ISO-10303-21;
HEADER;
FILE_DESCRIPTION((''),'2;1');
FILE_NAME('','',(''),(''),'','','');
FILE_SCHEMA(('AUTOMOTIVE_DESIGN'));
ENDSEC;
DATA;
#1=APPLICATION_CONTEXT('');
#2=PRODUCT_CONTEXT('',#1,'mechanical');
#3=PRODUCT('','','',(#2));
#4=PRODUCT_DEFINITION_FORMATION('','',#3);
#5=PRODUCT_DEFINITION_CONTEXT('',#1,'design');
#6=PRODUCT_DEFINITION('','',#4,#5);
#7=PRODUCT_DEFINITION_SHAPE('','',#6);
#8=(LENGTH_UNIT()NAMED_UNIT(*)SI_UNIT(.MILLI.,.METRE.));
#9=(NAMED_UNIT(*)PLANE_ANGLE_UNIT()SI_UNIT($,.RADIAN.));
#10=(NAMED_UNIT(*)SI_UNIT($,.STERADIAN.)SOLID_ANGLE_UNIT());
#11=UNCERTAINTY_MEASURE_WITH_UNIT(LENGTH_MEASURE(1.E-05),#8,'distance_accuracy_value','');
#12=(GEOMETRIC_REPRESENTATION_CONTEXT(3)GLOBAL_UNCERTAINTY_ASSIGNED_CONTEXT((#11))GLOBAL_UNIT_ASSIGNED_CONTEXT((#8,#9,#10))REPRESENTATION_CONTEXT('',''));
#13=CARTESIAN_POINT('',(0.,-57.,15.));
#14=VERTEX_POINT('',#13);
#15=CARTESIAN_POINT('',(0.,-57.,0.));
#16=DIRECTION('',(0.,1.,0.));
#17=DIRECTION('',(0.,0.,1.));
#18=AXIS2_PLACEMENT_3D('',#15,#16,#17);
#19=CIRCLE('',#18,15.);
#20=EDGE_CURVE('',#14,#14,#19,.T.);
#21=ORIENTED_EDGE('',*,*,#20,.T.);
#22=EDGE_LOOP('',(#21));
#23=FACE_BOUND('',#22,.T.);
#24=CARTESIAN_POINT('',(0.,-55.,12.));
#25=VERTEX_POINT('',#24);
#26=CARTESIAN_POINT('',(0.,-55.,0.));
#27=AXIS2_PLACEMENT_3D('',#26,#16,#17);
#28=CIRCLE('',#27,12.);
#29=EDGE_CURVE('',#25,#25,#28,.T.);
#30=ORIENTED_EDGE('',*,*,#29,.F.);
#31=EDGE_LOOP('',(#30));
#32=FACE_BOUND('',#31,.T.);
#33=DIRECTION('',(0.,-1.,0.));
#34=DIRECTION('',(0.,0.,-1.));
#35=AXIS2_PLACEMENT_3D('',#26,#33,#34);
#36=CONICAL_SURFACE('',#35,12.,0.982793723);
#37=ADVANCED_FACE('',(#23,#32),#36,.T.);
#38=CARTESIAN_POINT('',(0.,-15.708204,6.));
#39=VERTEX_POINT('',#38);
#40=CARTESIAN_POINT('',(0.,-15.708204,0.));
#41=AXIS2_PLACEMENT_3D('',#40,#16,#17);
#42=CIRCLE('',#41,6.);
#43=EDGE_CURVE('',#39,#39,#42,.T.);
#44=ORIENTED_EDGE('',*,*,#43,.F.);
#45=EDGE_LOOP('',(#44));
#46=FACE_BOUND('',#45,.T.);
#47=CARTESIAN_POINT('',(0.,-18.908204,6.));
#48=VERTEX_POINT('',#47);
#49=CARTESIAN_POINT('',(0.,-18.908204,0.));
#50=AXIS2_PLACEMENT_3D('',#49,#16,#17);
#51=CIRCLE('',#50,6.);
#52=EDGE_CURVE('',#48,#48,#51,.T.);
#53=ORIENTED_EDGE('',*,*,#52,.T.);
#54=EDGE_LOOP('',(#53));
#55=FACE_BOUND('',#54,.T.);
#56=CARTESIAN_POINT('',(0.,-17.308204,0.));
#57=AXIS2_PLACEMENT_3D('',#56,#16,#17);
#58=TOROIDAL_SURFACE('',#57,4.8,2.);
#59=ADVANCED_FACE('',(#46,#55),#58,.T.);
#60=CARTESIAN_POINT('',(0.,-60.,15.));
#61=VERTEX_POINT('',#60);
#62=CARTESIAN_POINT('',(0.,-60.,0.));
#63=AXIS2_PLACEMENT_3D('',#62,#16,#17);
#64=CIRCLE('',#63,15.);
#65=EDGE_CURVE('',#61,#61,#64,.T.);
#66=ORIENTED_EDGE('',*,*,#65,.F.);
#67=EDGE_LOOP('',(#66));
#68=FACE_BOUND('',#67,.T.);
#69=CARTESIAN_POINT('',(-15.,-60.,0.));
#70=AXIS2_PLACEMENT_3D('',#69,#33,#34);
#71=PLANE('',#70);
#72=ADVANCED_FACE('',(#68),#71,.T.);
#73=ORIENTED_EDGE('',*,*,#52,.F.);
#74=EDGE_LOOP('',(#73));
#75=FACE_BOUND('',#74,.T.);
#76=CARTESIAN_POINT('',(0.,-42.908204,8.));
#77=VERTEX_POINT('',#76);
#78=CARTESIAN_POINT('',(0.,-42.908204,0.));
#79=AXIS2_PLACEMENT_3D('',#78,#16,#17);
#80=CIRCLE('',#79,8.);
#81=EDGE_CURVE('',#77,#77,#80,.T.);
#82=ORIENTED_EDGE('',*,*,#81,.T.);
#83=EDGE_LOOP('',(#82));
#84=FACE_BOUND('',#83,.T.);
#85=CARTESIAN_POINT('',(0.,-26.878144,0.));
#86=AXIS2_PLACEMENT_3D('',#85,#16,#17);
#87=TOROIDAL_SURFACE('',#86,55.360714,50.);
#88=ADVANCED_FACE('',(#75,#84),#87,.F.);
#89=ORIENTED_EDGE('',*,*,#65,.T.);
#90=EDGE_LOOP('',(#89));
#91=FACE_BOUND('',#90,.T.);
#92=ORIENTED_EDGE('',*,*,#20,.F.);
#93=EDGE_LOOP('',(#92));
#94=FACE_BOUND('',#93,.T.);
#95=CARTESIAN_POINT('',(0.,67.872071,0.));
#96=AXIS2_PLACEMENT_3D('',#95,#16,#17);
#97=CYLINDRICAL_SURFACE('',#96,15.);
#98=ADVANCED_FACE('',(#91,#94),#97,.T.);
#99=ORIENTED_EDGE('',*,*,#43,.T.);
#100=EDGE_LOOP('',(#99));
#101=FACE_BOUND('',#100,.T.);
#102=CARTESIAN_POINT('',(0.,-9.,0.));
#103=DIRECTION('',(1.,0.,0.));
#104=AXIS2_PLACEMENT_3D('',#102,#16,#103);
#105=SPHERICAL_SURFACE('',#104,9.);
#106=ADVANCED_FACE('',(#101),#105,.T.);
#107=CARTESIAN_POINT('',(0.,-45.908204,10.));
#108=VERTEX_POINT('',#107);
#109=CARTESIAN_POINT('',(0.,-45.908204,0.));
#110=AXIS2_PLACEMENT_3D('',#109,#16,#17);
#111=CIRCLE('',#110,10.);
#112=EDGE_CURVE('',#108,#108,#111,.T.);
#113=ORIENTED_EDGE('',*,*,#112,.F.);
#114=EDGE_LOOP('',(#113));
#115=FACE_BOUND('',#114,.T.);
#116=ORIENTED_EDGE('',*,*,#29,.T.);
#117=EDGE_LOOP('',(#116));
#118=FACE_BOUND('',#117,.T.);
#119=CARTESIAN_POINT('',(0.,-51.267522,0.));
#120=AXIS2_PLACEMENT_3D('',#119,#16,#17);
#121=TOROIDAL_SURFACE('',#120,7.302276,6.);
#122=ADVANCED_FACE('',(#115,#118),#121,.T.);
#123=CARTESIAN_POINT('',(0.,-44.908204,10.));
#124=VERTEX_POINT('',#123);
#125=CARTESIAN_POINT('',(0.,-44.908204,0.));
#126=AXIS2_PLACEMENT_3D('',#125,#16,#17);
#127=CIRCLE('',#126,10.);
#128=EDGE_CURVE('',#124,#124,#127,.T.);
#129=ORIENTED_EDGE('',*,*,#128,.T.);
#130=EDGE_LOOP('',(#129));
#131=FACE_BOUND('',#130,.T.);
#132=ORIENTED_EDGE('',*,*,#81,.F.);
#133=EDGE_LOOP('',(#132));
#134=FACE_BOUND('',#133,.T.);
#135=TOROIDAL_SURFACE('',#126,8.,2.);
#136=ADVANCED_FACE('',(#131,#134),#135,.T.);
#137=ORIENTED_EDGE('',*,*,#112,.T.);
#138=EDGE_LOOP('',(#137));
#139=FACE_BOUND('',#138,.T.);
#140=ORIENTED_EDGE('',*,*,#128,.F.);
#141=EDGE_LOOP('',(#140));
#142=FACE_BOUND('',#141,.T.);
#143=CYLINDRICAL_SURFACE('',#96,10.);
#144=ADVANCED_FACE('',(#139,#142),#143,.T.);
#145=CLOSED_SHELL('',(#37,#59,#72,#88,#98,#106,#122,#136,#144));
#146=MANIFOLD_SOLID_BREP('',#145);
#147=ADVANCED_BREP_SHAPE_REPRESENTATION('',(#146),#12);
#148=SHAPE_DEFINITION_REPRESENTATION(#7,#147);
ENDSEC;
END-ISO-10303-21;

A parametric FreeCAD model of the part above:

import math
import FreeCAD as App
import Part
import Sketcher
from FreeCAD import Vector
Q = App.Units.Quantity

doc = App.newDocument("Part")
params = doc.addObject("Spreadsheet::Sheet", "Params")
for row, (alias, value) in enumerate([
    ("sketch1_radius", "6 mm"),
    ("sketch1_radius2", "9 mm"),
    ("sketch1_radius3", "2 mm"),
    ("sketch1_radius4", "50 mm"),
    ("sketch1_width", "15 mm"),
    ("revolution_angle", "360 deg"),
], start=1):
    params.set(f"A{row}", alias)
    params.set(f"B{row}", "=" + value)
    params.setAlias(f"B{row}", alias)

body = doc.addObject("PartDesign::Body", "Body")

sketch1 = doc.addObject("Sketcher::SketchObject", "Sketch")
body.addObject(sketch1)
sketch1.AttachmentSupport = (doc.XY_Plane, [""])
sketch1.MapMode = "FlatFace"
sketch1.addGeometry(Part.LineSegment(Vector(-10, -44.9, 0), Vector(-10, -45.9, 0)), False)
sketch1.addGeometry(Part.ArcOfCircle(Part.Circle(Vector(-7.3, -51.3, 0), Vector(0, 0, 1), 6), math.radians(117), math.radians(218)), False)
sketch1.addGeometry(Part.LineSegment(Vector(-12, -55, 0), Vector(-15, -57, 0)), False)
sketch1.addGeometry(Part.LineSegment(Vector(-15, -57, 0), Vector(-15, -60, 0)), False)
sketch1.addGeometry(Part.LineSegment(Vector(-15, -60, 0), Vector(0, -60, 0)), False)
sketch1.addGeometry(Part.LineSegment(Vector(0, -60, 0), Vector(0, 0, 0)), False)
sketch1.addGeometry(Part.ArcOfCircle(Part.Circle(Vector(0, -9, 0), Vector(0, 0, 1), 9), math.radians(90), math.radians(228)), False)
sketch1.addGeometry(Part.ArcOfCircle(Part.Circle(Vector(-4.8, -17.3, 0), Vector(0, 0, 1), 2), math.radians(127), math.radians(233)), False)
sketch1.addGeometry(Part.ArcOfCircle(Part.Circle(Vector(-55.4, -26.9, 0), Vector(0, 0, 1), 50), math.radians(-19), math.radians(9)), False)
sketch1.addGeometry(Part.ArcOfCircle(Part.Circle(Vector(-8, -44.9, 0), Vector(0, 0, 1), 2), math.radians(90), math.radians(180)), False)
sketch1.addConstraint(Sketcher.Constraint("Coincident", 0, 2, 1, 1))
sketch1.addConstraint(Sketcher.Constraint("Coincident", 1, 2, 2, 1))
sketch1.addConstraint(Sketcher.Constraint("Coincident", 2, 2, 3, 1))
sketch1.addConstraint(Sketcher.Constraint("Coincident", 3, 2, 4, 1))
sketch1.addConstraint(Sketcher.Constraint("Coincident", 4, 2, 5, 1))
sketch1.addConstraint(Sketcher.Constraint("Coincident", 5, 2, 6, 1))
sketch1.addConstraint(Sketcher.Constraint("Coincident", 6, 2, 7, 1))
sketch1.addConstraint(Sketcher.Constraint("Coincident", 7, 2, 8, 2))
sketch1.addConstraint(Sketcher.Constraint("Coincident", 8, 1, 9, 1))
sketch1.addConstraint(Sketcher.Constraint("Tangent", 9, 2, 0, 1))
sketch1.addConstraint(Sketcher.Constraint("Vertical", 0))
sketch1.addConstraint(Sketcher.Constraint("Vertical", 3))
sketch1.addConstraint(Sketcher.Constraint("Horizontal", 4))
sketch1.addConstraint(Sketcher.Constraint("Vertical", 5))
sketch1.addConstraint(Sketcher.Constraint("Coincident", 5, 2, -1, 1))
sketch1.addConstraint(Sketcher.Constraint("Equal", 7, 9))
sketch1.addConstraint(Sketcher.Constraint("PointOnObject", 6, 3, -2))
sketch1.addConstraint(Sketcher.Constraint("Vertical", 6, 2, 7, 2))
sketch1.addConstraint(Sketcher.Constraint("Vertical", 9, 3, 8, 1))
sketch1.addConstraint(Sketcher.Constraint("Radius", 1, Q("6 mm")))
sketch1.addConstraint(Sketcher.Constraint("Radius", 6, Q("9 mm")))
sketch1.addConstraint(Sketcher.Constraint("Radius", 7, Q("2 mm")))
sketch1.addConstraint(Sketcher.Constraint("Radius", 8, Q("50 mm")))
sketch1.addConstraint(Sketcher.Constraint("DistanceX", 4, 1, 4, 2, Q("15 mm")))
sketch1.addConstraint(Sketcher.Constraint("DistanceY", 0, 2, 0, 1, Q("1 mm")))
sketch1.addConstraint(Sketcher.Constraint("DistanceY", 3, 2, 3, 1, Q("3 mm")))
sketch1.addConstraint(Sketcher.Constraint("DistanceY", 5, 1, 5, 2, Q("60 mm")))
sketch1.addConstraint(Sketcher.Constraint("DistanceX", 9, 3, -1, 1, Q("8 mm")))
sketch1.addConstraint(Sketcher.Constraint("DistanceX", 1, 2, -1, 1, Q("12 mm")))
sketch1.addConstraint(Sketcher.Constraint("DistanceY", 1, 2, -1, 1, Q("55 mm")))
sketch1.addConstraint(Sketcher.Constraint("DistanceX", 6, 2, -1, 1, Q("6 mm")))
sketch1.addConstraint(Sketcher.Constraint("DistanceY", 9, 3, 7, 2, Q("26 mm")))
sketch1.addConstraint(Sketcher.Constraint("DistanceX", 7, 3, -1, 1, Q("4.8 mm")))
sketch1.setExpression("Constraints[19]", "Params.sketch1_radius")
sketch1.setExpression("Constraints[20]", "Params.sketch1_radius2")
sketch1.setExpression("Constraints[21]", "Params.sketch1_radius3")
sketch1.setExpression("Constraints[22]", "Params.sketch1_radius4")
sketch1.setExpression("Constraints[23]", "Params.sketch1_width")
revolution = doc.addObject("PartDesign::Revolution", "Revolution")
body.addObject(revolution)
revolution.Profile = sketch1
revolution.ReferenceAxis = (sketch1, ["V_Axis"])
revolution.setExpression("Angle", "Params.revolution_angle")

doc.recompute()
